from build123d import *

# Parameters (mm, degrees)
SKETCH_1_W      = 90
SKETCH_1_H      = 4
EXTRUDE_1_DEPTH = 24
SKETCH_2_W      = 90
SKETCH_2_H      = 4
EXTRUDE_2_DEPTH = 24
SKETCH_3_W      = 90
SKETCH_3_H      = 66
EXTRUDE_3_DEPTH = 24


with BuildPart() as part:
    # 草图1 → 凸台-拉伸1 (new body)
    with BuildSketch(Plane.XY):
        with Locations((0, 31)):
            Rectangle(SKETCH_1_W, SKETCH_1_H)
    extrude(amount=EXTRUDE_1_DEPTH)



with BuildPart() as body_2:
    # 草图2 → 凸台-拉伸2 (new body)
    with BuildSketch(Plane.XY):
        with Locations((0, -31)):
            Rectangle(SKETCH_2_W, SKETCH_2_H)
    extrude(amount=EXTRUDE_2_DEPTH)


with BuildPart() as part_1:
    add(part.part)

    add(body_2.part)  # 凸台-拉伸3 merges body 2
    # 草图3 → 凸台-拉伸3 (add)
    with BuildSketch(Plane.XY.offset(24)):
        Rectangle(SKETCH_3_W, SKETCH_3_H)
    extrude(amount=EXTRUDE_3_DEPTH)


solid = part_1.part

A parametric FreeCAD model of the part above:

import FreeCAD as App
import Part
import Sketcher

V = App.Vector
Q = App.Units.Quantity

doc = App.newDocument("Part")
params = doc.addObject("Spreadsheet::Sheet", "Params")
for row, (alias, value) in enumerate([
    ("sketch1_width", "90 mm"),
    ("sketch1_height", "4 mm"),
    ("pad1_length", "24 mm"),
    ("sketch2_width", "90 mm"),
    ("sketch2_height", "4 mm"),
    ("pad2_length", "24 mm"),
    ("sketch3_width", "90 mm"),
    ("sketch3_height", "66 mm"),
    ("pad3_length", "24 mm"),
], start=1):
    params.set(f"A{row}", alias)
    params.set(f"B{row}", "=" + value)
    params.setAlias(f"B{row}", alias)

body = doc.addObject("PartDesign::Body", "Body")

sketch1 = body.newObject("Sketcher::SketchObject", "Sketch")
sketch1.AttachmentSupport = (doc.getObject("XY_Plane"), [""])
sketch1.MapMode = "FlatFace"
sketch1.addGeometry(Part.LineSegment(V(-45, 33, 0), V(-45, 29, 0)), False)
sketch1.addGeometry(Part.LineSegment(V(-45, 29, 0), V(45, 29, 0)), False)
sketch1.addGeometry(Part.LineSegment(V(45, 29, 0), V(45, 33, 0)), False)
sketch1.addGeometry(Part.LineSegment(V(45, 33, 0), V(-45, 33, 0)), False)
sketch1.addConstraint(Sketcher.Constraint("Coincident", 0, 2, 1, 1))
sketch1.addConstraint(Sketcher.Constraint("Coincident", 1, 2, 2, 1))
sketch1.addConstraint(Sketcher.Constraint("Coincident", 2, 2, 3, 1))
sketch1.addConstraint(Sketcher.Constraint("Coincident", 3, 2, 0, 1))
sketch1.addConstraint(Sketcher.Constraint("Vertical", 0))
sketch1.addConstraint(Sketcher.Constraint("Horizontal", 1))
sketch1.addConstraint(Sketcher.Constraint("Vertical", 2))
sketch1.addConstraint(Sketcher.Constraint("Horizontal", 3))
sketch1.addConstraint(Sketcher.Constraint("DistanceX", 1, 1, 1, 2, Q("90 mm")))
sketch1.addConstraint(Sketcher.Constraint("DistanceY", 0, 2, 0, 1, Q("4 mm")))
sketch1.addConstraint(Sketcher.Constraint("DistanceX", 0, 2, -1, 1, Q("45 mm")))
sketch1.addConstraint(Sketcher.Constraint("DistanceY", -1, 1, 0, 2, Q("29 mm")))
sketch1.setExpression("Constraints[8]", "Params.sketch1_width")
sketch1.setExpression("Constraints[9]", "Params.sketch1_height")
pad1 = body.newObject("PartDesign::Pad", "Pad")
pad1.Profile = sketch1
pad1.setExpression("Length", "Params.pad1_length")
body2 = doc.addObject("PartDesign::Body", "Body001")

sketch2 = body2.newObject("Sketcher::SketchObject", "Sketch001")
sketch2.AttachmentSupport = (doc.getObject("XY_Plane001"), [""])
sketch2.MapMode = "FlatFace"
sketch2.addGeometry(Part.LineSegment(V(-45, -29, 0), V(-45, -33, 0)), False)
sketch2.addGeometry(Part.LineSegment(V(-45, -33, 0), V(45, -33, 0)), False)
sketch2.addGeometry(Part.LineSegment(V(45, -33, 0), V(45, -29, 0)), False)
sketch2.addGeometry(Part.LineSegment(V(45, -29, 0), V(-45, -29, 0)), False)
sketch2.addConstraint(Sketcher.Constraint("Coincident", 0, 2, 1, 1))
sketch2.addConstraint(Sketcher.Constraint("Coincident", 1, 2, 2, 1))
sketch2.addConstraint(Sketcher.Constraint("Coincident", 2, 2, 3, 1))
sketch2.addConstraint(Sketcher.Constraint("Coincident", 3, 2, 0, 1))
sketch2.addConstraint(Sketcher.Constraint("Vertical", 0))
sketch2.addConstraint(Sketcher.Constraint("Horizontal", 1))
sketch2.addConstraint(Sketcher.Constraint("Vertical", 2))
sketch2.addConstraint(Sketcher.Constraint("Horizontal", 3))
sketch2.addConstraint(Sketcher.Constraint("DistanceX", 1, 1, 1, 2, Q("90 mm")))
sketch2.addConstraint(Sketcher.Constraint("DistanceY", 0, 2, 0, 1, Q("4 mm")))
sketch2.addConstraint(Sketcher.Constraint("DistanceX", 0, 2, -1, 1, Q("45 mm")))
sketch2.addConstraint(Sketcher.Constraint("DistanceY", 0, 2, -1, 1, Q("33 mm")))
sketch2.setExpression("Constraints[8]", "Params.sketch2_width")
sketch2.setExpression("Constraints[9]", "Params.sketch2_height")
pad2 = body2.newObject("PartDesign::Pad", "Pad001")
pad2.Profile = sketch2
pad2.setExpression("Length", "Params.pad2_length")
body.AllowCompound = True
doc.recompute()

boolean = body.newObject("PartDesign::Boolean", "Boolean")
boolean.Type = "Fuse"
boolean.addObjects([body2])

sketch3 = body.newObject("Sketcher::SketchObject", "Sketch002")
sketch3.AttachmentSupport = (doc.getObject("XY_Plane"), [""])
sketch3.MapMode = "FlatFace"
sketch3.AttachmentOffset = App.Placement(V(0, 0, 24), App.Rotation())
sketch3.addGeometry(Part.LineSegment(V(-45, 33, 0), V(-45, -33, 0)), False)
sketch3.addGeometry(Part.LineSegment(V(-45, -33, 0), V(45, -33, 0)), False)
sketch3.addGeometry(Part.LineSegment(V(45, -33, 0), V(45, 33, 0)), False)
sketch3.addGeometry(Part.LineSegment(V(45, 33, 0), V(-45, 33, 0)), False)
sketch3.addConstraint(Sketcher.Constraint("Coincident", 0, 2, 1, 1))
sketch3.addConstraint(Sketcher.Constraint("Coincident", 1, 2, 2, 1))
sketch3.addConstraint(Sketcher.Constraint("Coincident", 2, 2, 3, 1))
sketch3.addConstraint(Sketcher.Constraint("Coincident", 3, 2, 0, 1))
sketch3.addConstraint(Sketcher.Constraint("Vertical", 0))
sketch3.addConstraint(Sketcher.Constraint("Horizontal", 1))
sketch3.addConstraint(Sketcher.Constraint("Vertical", 2))
sketch3.addConstraint(Sketcher.Constraint("Horizontal", 3))
sketch3.addConstraint(Sketcher.Constraint("Symmetric", 0, 2, 2, 2, -1, 1))
sketch3.addConstraint(Sketcher.Constraint("DistanceX", 1, 1, 1, 2, Q("90 mm")))
sketch3.addConstraint(Sketcher.Constraint("DistanceY", 0, 2, 0, 1, Q("66 mm")))
sketch3.setExpression("Constraints[9]", "Params.sketch3_width")
sketch3.setExpression("Constraints[10]", "Params.sketch3_height")
pad3 = body.newObject("PartDesign::Pad", "Pad002")
pad3.Profile = sketch3
pad3.setExpression("Length", "Params.pad3_length")

doc.recompute()
